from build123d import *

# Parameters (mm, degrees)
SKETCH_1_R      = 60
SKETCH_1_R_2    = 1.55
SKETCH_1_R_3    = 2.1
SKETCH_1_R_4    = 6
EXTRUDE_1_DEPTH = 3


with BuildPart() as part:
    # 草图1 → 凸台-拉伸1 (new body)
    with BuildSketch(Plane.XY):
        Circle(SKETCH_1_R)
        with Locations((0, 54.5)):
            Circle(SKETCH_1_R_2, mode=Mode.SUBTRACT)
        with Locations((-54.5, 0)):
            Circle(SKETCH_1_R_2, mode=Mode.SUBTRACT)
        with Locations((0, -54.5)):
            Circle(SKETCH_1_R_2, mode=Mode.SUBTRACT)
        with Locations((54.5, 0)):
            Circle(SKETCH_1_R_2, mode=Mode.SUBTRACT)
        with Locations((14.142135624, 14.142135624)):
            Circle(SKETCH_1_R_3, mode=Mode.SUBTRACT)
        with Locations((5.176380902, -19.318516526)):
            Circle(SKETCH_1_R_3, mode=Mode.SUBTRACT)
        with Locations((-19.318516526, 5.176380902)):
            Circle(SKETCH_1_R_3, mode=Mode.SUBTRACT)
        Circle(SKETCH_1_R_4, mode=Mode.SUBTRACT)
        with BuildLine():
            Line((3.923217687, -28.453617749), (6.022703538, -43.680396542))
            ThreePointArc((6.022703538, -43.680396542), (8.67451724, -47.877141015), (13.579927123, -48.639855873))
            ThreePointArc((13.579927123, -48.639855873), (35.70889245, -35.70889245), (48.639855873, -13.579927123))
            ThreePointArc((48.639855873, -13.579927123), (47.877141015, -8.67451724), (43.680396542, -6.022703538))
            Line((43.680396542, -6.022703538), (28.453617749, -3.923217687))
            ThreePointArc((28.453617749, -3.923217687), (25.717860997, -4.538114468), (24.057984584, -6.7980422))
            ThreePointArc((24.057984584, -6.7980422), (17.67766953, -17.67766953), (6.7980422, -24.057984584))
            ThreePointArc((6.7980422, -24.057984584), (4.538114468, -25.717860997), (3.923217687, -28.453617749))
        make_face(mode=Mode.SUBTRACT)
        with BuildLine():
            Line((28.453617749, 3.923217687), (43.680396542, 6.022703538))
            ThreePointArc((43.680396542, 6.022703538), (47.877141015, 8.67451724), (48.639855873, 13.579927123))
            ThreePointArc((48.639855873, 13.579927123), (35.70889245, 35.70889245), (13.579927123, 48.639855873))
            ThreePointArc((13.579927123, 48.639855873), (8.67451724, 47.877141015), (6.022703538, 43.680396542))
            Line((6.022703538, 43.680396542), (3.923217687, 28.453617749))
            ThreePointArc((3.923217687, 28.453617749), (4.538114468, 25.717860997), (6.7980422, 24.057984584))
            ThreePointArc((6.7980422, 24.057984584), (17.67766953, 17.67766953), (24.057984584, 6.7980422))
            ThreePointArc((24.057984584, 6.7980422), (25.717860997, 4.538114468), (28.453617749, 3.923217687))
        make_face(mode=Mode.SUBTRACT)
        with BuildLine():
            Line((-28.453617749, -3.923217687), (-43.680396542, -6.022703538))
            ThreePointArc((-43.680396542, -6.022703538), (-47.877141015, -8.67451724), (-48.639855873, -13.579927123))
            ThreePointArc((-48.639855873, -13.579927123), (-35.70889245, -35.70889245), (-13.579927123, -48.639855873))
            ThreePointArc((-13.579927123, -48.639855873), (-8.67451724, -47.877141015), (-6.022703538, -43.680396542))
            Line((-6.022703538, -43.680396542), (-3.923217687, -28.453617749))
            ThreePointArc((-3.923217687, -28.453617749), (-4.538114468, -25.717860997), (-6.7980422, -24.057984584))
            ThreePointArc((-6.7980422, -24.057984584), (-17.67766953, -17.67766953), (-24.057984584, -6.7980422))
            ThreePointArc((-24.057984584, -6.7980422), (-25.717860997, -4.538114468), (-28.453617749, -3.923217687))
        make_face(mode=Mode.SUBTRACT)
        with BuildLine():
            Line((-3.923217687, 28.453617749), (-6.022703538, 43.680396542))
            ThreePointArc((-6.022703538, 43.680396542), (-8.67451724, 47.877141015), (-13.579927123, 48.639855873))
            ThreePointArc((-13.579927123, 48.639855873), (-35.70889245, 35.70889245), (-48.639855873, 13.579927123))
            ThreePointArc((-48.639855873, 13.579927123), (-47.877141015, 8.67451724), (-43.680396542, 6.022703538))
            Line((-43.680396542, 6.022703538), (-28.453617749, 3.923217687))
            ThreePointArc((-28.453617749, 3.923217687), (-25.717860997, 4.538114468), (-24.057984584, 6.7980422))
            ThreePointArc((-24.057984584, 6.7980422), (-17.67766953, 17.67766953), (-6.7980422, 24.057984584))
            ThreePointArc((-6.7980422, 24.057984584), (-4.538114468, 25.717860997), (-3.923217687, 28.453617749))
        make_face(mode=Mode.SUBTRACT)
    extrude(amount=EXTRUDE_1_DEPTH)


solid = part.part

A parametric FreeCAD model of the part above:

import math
import FreeCAD as App
import Part
import Sketcher
from FreeCAD import Vector

doc = App.newDocument("Part")
body = doc.addObject("PartDesign::Body", "Body")

# Sketch on XY plane
sketch1 = body.newObject("Sketcher::SketchObject", "Sketch")
sketch1.AttachmentSupport = (doc.getObject("XY_Plane"), [""])
sketch1.MapMode = "FlatFace"
sketch1.addGeometry(Part.Circle(Vector(0, 0, 0), Vector(0, 0, 1), 60), False)
sketch1.addGeometry(Part.LineSegment(Vector(-43.7, -6, 0), Vector(-28.5, -3.9, 0)), False)
sketch1.addGeometry(Part.ArcOfCircle(Part.Circle(Vector(-27.9, -7.9, 0), Vector(0, 0, 1), 4), math.radians(16), math.radians(98)), False)
sketch1.addGeometry(Part.ArcOfCircle(Part.Circle(Vector(0, 0, 0), Vector(0, 0, 1), 25), math.radians(-164), math.radians(-106)), False)
sketch1.addGeometry(Part.ArcOfCircle(Part.Circle(Vector(-7.9, -27.9, 0), Vector(0, 0, 1), 4), math.radians(-8), math.radians(74)), False)
sketch1.addGeometry(Part.LineSegment(Vector(-3.9, -28.5, 0), Vector(-6, -43.7, 0)), False)
sketch1.addGeometry(Part.ArcOfCircle(Part.Circle(Vector(-12, -42.9, 0), Vector(0, 0, 1), 6), math.radians(-106), math.radians(-8)), False)
sketch1.addGeometry(Part.ArcOfCircle(Part.Circle(Vector(0, 0, 0), Vector(0, 0, 1), 50.5), math.radians(-164), math.radians(-106)), False)
sketch1.addGeometry(Part.ArcOfCircle(Part.Circle(Vector(-42.9, -12, 0), Vector(0, 0, 1), 6), math.radians(98), math.radians(196)), False)
sketch1.addGeometry(Part.Circle(Vector(0, -54.5, 0), Vector(0, 0, 1), 1.6), False)
sketch1.addGeometry(Part.Circle(Vector(5.2, -19.3, 0), Vector(0, 0, 1), 2.1), False)
sketch1.addGeometry(Part.LineSegment(Vector(6, -43.7, 0), Vector(3.9, -28.5, 0)), False)
sketch1.addGeometry(Part.ArcOfCircle(Part.Circle(Vector(7.9, -27.9, 0), Vector(0, 0, 1), 4), math.radians(106), math.radians(188)), False)
sketch1.addGeometry(Part.ArcOfCircle(Part.Circle(Vector(0, 0, 0), Vector(0, 0, 1), 25), math.radians(-74), math.radians(-16)), False)
sketch1.addGeometry(Part.ArcOfCircle(Part.Circle(Vector(27.9, -7.9, 0), Vector(0, 0, 1), 4), math.radians(82), math.radians(164)), False)
sketch1.addGeometry(Part.LineSegment(Vector(28.5, -3.9, 0), Vector(43.7, -6, 0)), False)
sketch1.addGeometry(Part.ArcOfCircle(Part.Circle(Vector(42.9, -12, 0), Vector(0, 0, 1), 6), math.radians(-16), math.radians(82)), False)
sketch1.addGeometry(Part.ArcOfCircle(Part.Circle(Vector(0, 0, 0), Vector(0, 0, 1), 50.5), math.radians(-74), math.radians(-16)), False)
sketch1.addGeometry(Part.ArcOfCircle(Part.Circle(Vector(12, -42.9, 0), Vector(0, 0, 1), 6), math.radians(-172), math.radians(-74)), False)
sketch1.addGeometry(Part.Circle(Vector(-54.5, 0, 0), Vector(0, 0, 1), 1.6), False)
sketch1.addGeometry(Part.Circle(Vector(-19.3, 5.2, 0), Vector(0, 0, 1), 2.1), False)
sketch1.addGeometry(Part.LineSegment(Vector(-6, 43.7, 0), Vector(-3.9, 28.5, 0)), False)
sketch1.addGeometry(Part.ArcOfCircle(Part.Circle(Vector(-7.9, 27.9, 0), Vector(0, 0, 1), 4), math.radians(-74), math.radians(8)), False)
sketch1.addGeometry(Part.ArcOfCircle(Part.Circle(Vector(0, 0, 0), Vector(0, 0, 1), 25), math.radians(106), math.radians(164)), False)
sketch1.addGeometry(Part.ArcOfCircle(Part.Circle(Vector(-27.9, 7.9, 0), Vector(0, 0, 1), 4), math.radians(-98), math.radians(-16)), False)
sketch1.addGeometry(Part.LineSegment(Vector(-28.5, 3.9, 0), Vector(-43.7, 6, 0)), False)
sketch1.addGeometry(Part.ArcOfCircle(Part.Circle(Vector(-42.9, 12, 0), Vector(0, 0, 1), 6), math.radians(164), math.radians(262)), False)
sketch1.addGeometry(Part.ArcOfCircle(Part.Circle(Vector(0, 0, 0), Vector(0, 0, 1), 50.5), math.radians(106), math.radians(164)), False)
sketch1.addGeometry(Part.ArcOfCircle(Part.Circle(Vector(-12, 42.9, 0), Vector(0, 0, 1), 6), math.radians(8), math.radians(106)), False)
sketch1.addGeometry(Part.Circle(Vector(0, 0, 0), Vector(0, 0, 1), 6), False)
sketch1.addGeometry(Part.Circle(Vector(14.1, 14.1, 0), Vector(0, 0, 1), 2.1), False)
sketch1.addGeometry(Part.LineSegment(Vector(43.7, 6, 0), Vector(28.5, 3.9, 0)), False)
sketch1.addGeometry(Part.ArcOfCircle(Part.Circle(Vector(27.9, 7.9, 0), Vector(0, 0, 1), 4), math.radians(-164), math.radians(-82)), False)
sketch1.addGeometry(Part.ArcOfCircle(Part.Circle(Vector(0, 0, 0), Vector(0, 0, 1), 25), math.radians(16), math.radians(74)), False)
sketch1.addGeometry(Part.ArcOfCircle(Part.Circle(Vector(7.9, 27.9, 0), Vector(0, 0, 1), 4), math.radians(172), math.radians(254)), False)
sketch1.addGeometry(Part.LineSegment(Vector(3.9, 28.5, 0), Vector(6, 43.7, 0)), False)
sketch1.addGeometry(Part.ArcOfCircle(Part.Circle(Vector(12, 42.9, 0), Vector(0, 0, 1), 6), math.radians(74), math.radians(172)), False)
sketch1.addGeometry(Part.ArcOfCircle(Part.Circle(Vector(0, 0, 0), Vector(0, 0, 1), 50.5), math.radians(16), math.radians(74)), False)
sketch1.addGeometry(Part.ArcOfCircle(Part.Circle(Vector(42.9, 12, 0), Vector(0, 0, 1), 6), math.radians(-82), math.radians(16)), False)
sketch1.addGeometry(Part.Circle(Vector(54.5, 0, 0), Vector(0, 0, 1), 1.6), False)
sketch1.addGeometry(Part.Circle(Vector(0, 54.5, 0), Vector(0, 0, 1), 1.6), False)
sketch1.addConstraint(Sketcher.Constraint("Tangent", 1, 2, 2, 2))
sketch1.addConstraint(Sketcher.Constraint("Tangent", 2, 1, 3, 1))
sketch1.addConstraint(Sketcher.Constraint("Tangent", 3, 2, 4, 2))
sketch1.addConstraint(Sketcher.Constraint("Tangent", 4, 1, 5, 1))
sketch1.addConstraint(Sketcher.Constraint("Tangent", 5, 2, 6, 2))
sketch1.addConstraint(Sketcher.Constraint("Tangent", 6, 1, 7, 2))
sketch1.addConstraint(Sketcher.Constraint("Tangent", 7, 1, 8, 2))
sketch1.addConstraint(Sketcher.Constraint("Tangent", 8, 1, 1, 1))
sketch1.addConstraint(Sketcher.Constraint("Tangent", 11, 2, 12, 2))
sketch1.addConstraint(Sketcher.Constraint("Tangent", 12, 1, 13, 1))
sketch1.addConstraint(Sketcher.Constraint("Tangent", 13, 2, 14, 2))
sketch1.addConstraint(Sketcher.Constraint("Tangent", 14, 1, 15, 1))
sketch1.addConstraint(Sketcher.Constraint("Tangent", 15, 2, 16, 2))
sketch1.addConstraint(Sketcher.Constraint("Tangent", 16, 1, 17, 2))
sketch1.addConstraint(Sketcher.Constraint("Tangent", 17, 1, 18, 2))
sketch1.addConstraint(Sketcher.Constraint("Tangent", 18, 1, 11, 1))
sketch1.addConstraint(Sketcher.Constraint("Tangent", 21, 2, 22, 2))
sketch1.addConstraint(Sketcher.Constraint("Tangent", 22, 1, 23, 1))
sketch1.addConstraint(Sketcher.Constraint("Tangent", 23, 2, 24, 2))
sketch1.addConstraint(Sketcher.Constraint("Tangent", 24, 1, 25, 1))
sketch1.addConstraint(Sketcher.Constraint("Tangent", 25, 2, 26, 2))
sketch1.addConstraint(Sketcher.Constraint("Tangent", 26, 1, 27, 2))
sketch1.addConstraint(Sketcher.Constraint("Tangent", 27, 1, 28, 2))
sketch1.addConstraint(Sketcher.Constraint("Tangent", 28, 1, 21, 1))
sketch1.addConstraint(Sketcher.Constraint("Tangent", 31, 2, 32, 2))
sketch1.addConstraint(Sketcher.Constraint("Tangent", 32, 1, 33, 1))
sketch1.addConstraint(Sketcher.Constraint("Tangent", 33, 2, 34, 2))
sketch1.addConstraint(Sketcher.Constraint("Tangent", 34, 1, 35, 1))
sketch1.addConstraint(Sketcher.Constraint("Tangent", 35, 2, 36, 2))
sketch1.addConstraint(Sketcher.Constraint("Tangent", 36, 1, 37, 2))
sketch1.addConstraint(Sketcher.Constraint("Tangent", 37, 1, 38, 2))
sketch1.addConstraint(Sketcher.Constraint("Tangent", 38, 1, 31, 1))
sketch1.addConstraint(Sketcher.Constraint("Coincident", 0, 3, -1, 1))
sketch1.addConstraint(Sketcher.Constraint("Coincident", 3, 3, -1, 1))
sketch1.addConstraint(Sketcher.Constraint("Coincident", 7, 3, -1, 1))
sketch1.addConstraint(Sketcher.Constraint("Coincident", 13, 3, -1, 1))
sketch1.addConstraint(Sketcher.Constraint("Coincident", 17, 3, -1, 1))
sketch1.addConstraint(Sketcher.Constraint("Coincident", 23, 3, -1, 1))
sketch1.addConstraint(Sketcher.Constraint("Coincident", 27, 3, -1, 1))
sketch1.addConstraint(Sketcher.Constraint("Coincident", 29, 3, -1, 1))
sketch1.addConstraint(Sketcher.Constraint("Coincident", 33, 3, -1, 1))
sketch1.addConstraint(Sketcher.Constraint("Coincident", 37, 3, -1, 1))
sketch1.addConstraint(Sketcher.Constraint("Equal", 2, 4))
sketch1.addConstraint(Sketcher.Constraint("Equal", 6, 8))
sketch1.addConstraint(Sketcher.Constraint("Equal", 4, 12))
sketch1.addConstraint(Sketcher.Constraint("Equal", 3, 13))
sketch1.addConstraint(Sketcher.Constraint("Equal", 12, 14))
sketch1.addConstraint(Sketcher.Constraint("Equal", 8, 16))
sketch1.addConstraint(Sketcher.Constraint("Equal", 7, 17))
sketch1.addConstraint(Sketcher.Constraint("Equal", 16, 18))
sketch1.addConstraint(Sketcher.Constraint("Equal", 9, 19))
sketch1.addConstraint(Sketcher.Constraint("Equal", 10, 20))
sketch1.addConstraint(Sketcher.Constraint("Equal", 14, 22))
sketch1.addConstraint(Sketcher.Constraint("Equal", 13, 23))
sketch1.addConstraint(Sketcher.Constraint("Equal", 22, 24))
sketch1.addConstraint(Sketcher.Constraint("Equal", 18, 26))
sketch1.addConstraint(Sketcher.Constraint("Equal", 17, 27))
sketch1.addConstraint(Sketcher.Constraint("Equal", 26, 28))
sketch1.addConstraint(Sketcher.Constraint("Equal", 28, 29))
sketch1.addConstraint(Sketcher.Constraint("Equal", 20, 30))
sketch1.addConstraint(Sketcher.Constraint("Equal", 24, 32))
sketch1.addConstraint(Sketcher.Constraint("Equal", 23, 33))
sketch1.addConstraint(Sketcher.Constraint("Equal", 32, 34))
sketch1.addConstraint(Sketcher.Constraint("Equal", 29, 36))
sketch1.addConstraint(Sketcher.Constraint("Equal", 27, 37))
sketch1.addConstraint(Sketcher.Constraint("Equal", 36, 38))
sketch1.addConstraint(Sketcher.Constraint("Equal", 19, 39))
sketch1.addConstraint(Sketcher.Constraint("Equal", 39, 40))
sketch1.addConstraint(Sketcher.Constraint("Symmetric", 19, 3, 39, 3, -1, 1))
sketch1.addConstraint(Sketcher.Constraint("Symmetric", 9, 3, 40, 3, -1, 1))
sketch1.addConstraint(Sketcher.Constraint("Symmetric", 11, 2, 21, 2, -1, 1))
sketch1.addConstraint(Sketcher.Constraint("Symmetric", 14, 1, 24, 1, -1, 1))
sketch1.addConstraint(Sketcher.Constraint("Symmetric", 1, 2, 31, 2, -1, 1))
sketch1.addConstraint(Sketcher.Constraint("Symmetric", 4, 1, 34, 1, -1, 1))
sketch1.addConstraint(Sketcher.Constraint("Symmetric", 4, 1, 11, 2, -2))
sketch1.addConstraint(Sketcher.Constraint("Symmetric", 1, 2, 14, 1, -2))
sketch1.addConstraint(Sketcher.Constraint("PointOnObject", 9, 3, -2))
sketch1.addConstraint(Sketcher.Constraint("PointOnObject", 19, 3, -1))
sketch1.addConstraint(Sketcher.Constraint("Perpendicular", 1, 11))
sketch1.addConstraint(Sketcher.Constraint("Diameter", 0, 120.0))
sketch1.addConstraint(Sketcher.Constraint("Diameter", 29, 12.0))
sketch1.addConstraint(Sketcher.Constraint("Radius", 2, 4.0))
sketch1.addConstraint(Sketcher.Constraint("Radius", 3, 25.0))
sketch1.addConstraint(Sketcher.Constraint("Diameter", 9, 3.1))
sketch1.addConstraint(Sketcher.Constraint("Diameter", 10, 4.2))
sketch1.addConstraint(Sketcher.Constraint("Radius", 7, 50.5))
sketch1.addConstraint(Sketcher.Constraint("DistanceY", 9, 3, -1, 1, 54.5))
sketch1.addConstraint(Sketcher.Constraint("DistanceX", 19, 3, -1, 1, 54.5))
sketch1.addConstraint(Sketcher.Constraint("DistanceY", 2, 3, -1, 1, 7.885729))
sketch1.addConstraint(Sketcher.Constraint("DistanceX", 4, 3, -1, 1, 7.885729))
sketch1.addConstraint(Sketcher.Constraint("DistanceX", 6, 3, -1, 1, 11.96647))
sketch1.addConstraint(Sketcher.Constraint("DistanceX", -1, 1, 10, 3, 5.176381))
sketch1.addConstraint(Sketcher.Constraint("DistanceY", -1, 1, 20, 3, 5.176381))
sketch1.addConstraint(Sketcher.Constraint("DistanceY", 10, 3, -1, 1, 19.318517))
sketch1.addConstraint(Sketcher.Constraint("DistanceX", 20, 3, -1, 1, 19.318517))
sketch1.addConstraint(Sketcher.Constraint("DistanceX", -1, 1, 30, 3, 14.142136))
sketch1.addConstraint(Sketcher.Constraint("DistanceY", -1, 1, 30, 3, 14.142136))
pad1 = body.newObject("PartDesign::Pad", "Pad")
pad1.Profile = sketch1
pad1.Length = 3

doc.recompute()
